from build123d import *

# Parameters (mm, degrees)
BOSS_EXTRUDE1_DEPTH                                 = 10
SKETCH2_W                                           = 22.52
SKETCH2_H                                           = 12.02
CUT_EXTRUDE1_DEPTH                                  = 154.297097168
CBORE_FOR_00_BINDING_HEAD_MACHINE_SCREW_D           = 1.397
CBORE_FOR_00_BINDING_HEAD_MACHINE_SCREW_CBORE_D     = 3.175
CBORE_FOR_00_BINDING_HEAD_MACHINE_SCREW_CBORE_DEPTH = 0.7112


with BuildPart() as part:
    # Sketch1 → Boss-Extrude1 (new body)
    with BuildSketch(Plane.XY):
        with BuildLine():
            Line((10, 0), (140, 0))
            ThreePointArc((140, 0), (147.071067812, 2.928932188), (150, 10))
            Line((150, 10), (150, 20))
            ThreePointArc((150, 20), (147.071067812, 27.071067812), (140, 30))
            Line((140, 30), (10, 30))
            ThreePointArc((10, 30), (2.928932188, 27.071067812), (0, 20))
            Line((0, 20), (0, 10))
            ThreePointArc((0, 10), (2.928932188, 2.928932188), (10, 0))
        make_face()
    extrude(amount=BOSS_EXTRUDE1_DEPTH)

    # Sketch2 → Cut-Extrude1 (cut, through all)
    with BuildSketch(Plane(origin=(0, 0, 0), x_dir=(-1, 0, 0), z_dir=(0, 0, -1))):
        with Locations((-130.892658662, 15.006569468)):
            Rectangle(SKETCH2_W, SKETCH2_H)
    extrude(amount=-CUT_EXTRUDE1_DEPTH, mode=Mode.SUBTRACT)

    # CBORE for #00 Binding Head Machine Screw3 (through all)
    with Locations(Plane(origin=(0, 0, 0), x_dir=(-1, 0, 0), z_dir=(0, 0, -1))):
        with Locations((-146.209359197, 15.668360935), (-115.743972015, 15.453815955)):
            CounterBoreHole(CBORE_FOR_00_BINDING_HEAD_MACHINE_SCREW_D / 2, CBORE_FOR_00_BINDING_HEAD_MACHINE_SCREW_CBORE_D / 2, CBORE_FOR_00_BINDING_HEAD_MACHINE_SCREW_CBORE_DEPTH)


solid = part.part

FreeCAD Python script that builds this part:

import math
import FreeCAD as App
import Part
import Sketcher
from FreeCAD import Vector
Q = App.Units.Quantity

doc = App.newDocument("Part")
body = doc.addObject("PartDesign::Body", "Body")

sketch1 = body.newObject("Sketcher::SketchObject", "Sketch")
sketch1.AttachmentSupport = (doc.getObject("XY_Plane"), [""])
sketch1.MapMode = "FlatFace"
sketch1.addGeometry([
    Part.LineSegment(Vector(10, 0, 0), Vector(140, 0, 0)),
    Part.ArcOfCircle(Part.Circle(Vector(140, 10, 0), Vector(0, 0, 1), 10), math.radians(-90), math.radians(0)),
    Part.LineSegment(Vector(150, 10, 0), Vector(150, 20, 0)),
    Part.ArcOfCircle(Part.Circle(Vector(140, 20, 0), Vector(0, 0, 1), 10), math.radians(0), math.radians(90)),
    Part.LineSegment(Vector(140, 30, 0), Vector(10, 30, 0)),
    Part.ArcOfCircle(Part.Circle(Vector(10, 20, 0), Vector(0, 0, 1), 10), math.radians(90), math.radians(180)),
    Part.LineSegment(Vector(0, 20, 0), Vector(0, 10, 0)),
    Part.ArcOfCircle(Part.Circle(Vector(10, 10, 0), Vector(0, 0, 1), 10), math.radians(180), math.radians(270)),
], False)
sketch1.addConstraint([
    Sketcher.Constraint("Tangent", 0, 2, 1, 1),
    Sketcher.Constraint("Tangent", 1, 2, 2, 1),
    Sketcher.Constraint("Tangent", 2, 2, 3, 1),
    Sketcher.Constraint("Tangent", 3, 2, 4, 1),
    Sketcher.Constraint("Tangent", 4, 2, 5, 1),
    Sketcher.Constraint("Tangent", 5, 2, 6, 1),
    Sketcher.Constraint("Tangent", 6, 2, 7, 1),
    Sketcher.Constraint("Tangent", 7, 2, 0, 1),
    Sketcher.Constraint("Horizontal", 0),
    Sketcher.Constraint("Vertical", 2),
    Sketcher.Constraint("Horizontal", 4),
    Sketcher.Constraint("Vertical", 6),
    Sketcher.Constraint("Equal", 1, 3),
    Sketcher.Constraint("Equal", 3, 5),
    Sketcher.Constraint("Equal", 5, 7),
    Sketcher.Constraint("PointOnObject", 0, 2, -1),
    Sketcher.Constraint("PointOnObject", 5, 2, -2),
    Sketcher.Constraint("Radius", 1, Q("10 mm")),
    Sketcher.Constraint("DistanceX", 0, 1, 0, 2, Q("130 mm")),
    Sketcher.Constraint("DistanceY", 2, 1, 2, 2, Q("10 mm")),
])
pad1 = body.newObject("PartDesign::Pad", "Pad")
pad1.Profile = sketch1
pad1.Length = 10

sketch2 = body.newObject("Sketcher::SketchObject", "Sketch001")
sketch2.AttachmentSupport = (doc.getObject("XY_Plane"), [""])
sketch2.MapMode = "FlatFace"
sketch2.addGeometry([
    Part.LineSegment(Vector(142.152659, 21.016569, 0), Vector(142.152659, 8.996569, 0)),
    Part.LineSegment(Vector(142.152659, 8.996569, 0), Vector(119.632659, 8.996569, 0)),
    Part.LineSegment(Vector(119.632659, 8.996569, 0), Vector(119.632659, 21.016569, 0)),
    Part.LineSegment(Vector(119.632659, 21.016569, 0), Vector(142.152659, 21.016569, 0)),
], False)
sketch2.addConstraint([
    Sketcher.Constraint("Coincident", 0, 2, 1, 1),
    Sketcher.Constraint("Coincident", 1, 2, 2, 1),
    Sketcher.Constraint("Coincident", 2, 2, 3, 1),
    Sketcher.Constraint("Coincident", 3, 2, 0, 1),
    Sketcher.Constraint("Vertical", 0),
    Sketcher.Constraint("Horizontal", 1),
    Sketcher.Constraint("Vertical", 2),
    Sketcher.Constraint("Horizontal", 3),
    Sketcher.Constraint("DistanceX", 1, 2, 1, 1, Q("22.52 mm")),
    Sketcher.Constraint("DistanceY", 0, 2, 0, 1, Q("12.02 mm")),
    Sketcher.Constraint("DistanceX", -1, 1, 0, 2, Q("142.152659 mm")),
    Sketcher.Constraint("DistanceY", -1, 1, 0, 2, Q("8.996569 mm")),
])
pocket1 = body.newObject("PartDesign::Pocket", "Pocket")
pocket1.Profile = sketch2
pocket1.Type = "ThroughAll"
pocket1.Reversed = True

sketch3 = body.newObject("Sketcher::SketchObject", "Sketch002")
sketch3.AttachmentSupport = (doc.getObject("XY_Plane"), [""])
sketch3.MapMode = "FlatFace"
sketch3.addGeometry([
    Part.Circle(Vector(146.209359, 15.668361, 0), Vector(0, 0, 1), 0.6985),
    Part.Circle(Vector(115.743972, 15.453816, 0), Vector(0, 0, 1), 0.6985),
], False)
sketch3.addConstraint([
    Sketcher.Constraint("Equal", 0, 1),
    Sketcher.Constraint("Diameter", 0, Q("1.397 mm")),
    Sketcher.Constraint("DistanceX", -1, 1, 0, 3, Q("146.209359 mm")),
    Sketcher.Constraint("DistanceY", -1, 1, 0, 3, Q("15.668361 mm")),
    Sketcher.Constraint("DistanceX", -1, 1, 1, 3, Q("115.743972 mm")),
    Sketcher.Constraint("DistanceY", -1, 1, 1, 3, Q("15.453816 mm")),
])
doc.recompute()
hole = body.newObject("PartDesign::Hole", "Hole")
hole.Profile = sketch3
hole.ThreadType = "None"
hole.Diameter = 1.397
hole.DepthType = "ThroughAll"
hole.HoleCutType = "Counterbore"
hole.HoleCutDiameter = 3.175
hole.HoleCutDepth = 0.7112
hole.Reversed = True

doc.recompute()
